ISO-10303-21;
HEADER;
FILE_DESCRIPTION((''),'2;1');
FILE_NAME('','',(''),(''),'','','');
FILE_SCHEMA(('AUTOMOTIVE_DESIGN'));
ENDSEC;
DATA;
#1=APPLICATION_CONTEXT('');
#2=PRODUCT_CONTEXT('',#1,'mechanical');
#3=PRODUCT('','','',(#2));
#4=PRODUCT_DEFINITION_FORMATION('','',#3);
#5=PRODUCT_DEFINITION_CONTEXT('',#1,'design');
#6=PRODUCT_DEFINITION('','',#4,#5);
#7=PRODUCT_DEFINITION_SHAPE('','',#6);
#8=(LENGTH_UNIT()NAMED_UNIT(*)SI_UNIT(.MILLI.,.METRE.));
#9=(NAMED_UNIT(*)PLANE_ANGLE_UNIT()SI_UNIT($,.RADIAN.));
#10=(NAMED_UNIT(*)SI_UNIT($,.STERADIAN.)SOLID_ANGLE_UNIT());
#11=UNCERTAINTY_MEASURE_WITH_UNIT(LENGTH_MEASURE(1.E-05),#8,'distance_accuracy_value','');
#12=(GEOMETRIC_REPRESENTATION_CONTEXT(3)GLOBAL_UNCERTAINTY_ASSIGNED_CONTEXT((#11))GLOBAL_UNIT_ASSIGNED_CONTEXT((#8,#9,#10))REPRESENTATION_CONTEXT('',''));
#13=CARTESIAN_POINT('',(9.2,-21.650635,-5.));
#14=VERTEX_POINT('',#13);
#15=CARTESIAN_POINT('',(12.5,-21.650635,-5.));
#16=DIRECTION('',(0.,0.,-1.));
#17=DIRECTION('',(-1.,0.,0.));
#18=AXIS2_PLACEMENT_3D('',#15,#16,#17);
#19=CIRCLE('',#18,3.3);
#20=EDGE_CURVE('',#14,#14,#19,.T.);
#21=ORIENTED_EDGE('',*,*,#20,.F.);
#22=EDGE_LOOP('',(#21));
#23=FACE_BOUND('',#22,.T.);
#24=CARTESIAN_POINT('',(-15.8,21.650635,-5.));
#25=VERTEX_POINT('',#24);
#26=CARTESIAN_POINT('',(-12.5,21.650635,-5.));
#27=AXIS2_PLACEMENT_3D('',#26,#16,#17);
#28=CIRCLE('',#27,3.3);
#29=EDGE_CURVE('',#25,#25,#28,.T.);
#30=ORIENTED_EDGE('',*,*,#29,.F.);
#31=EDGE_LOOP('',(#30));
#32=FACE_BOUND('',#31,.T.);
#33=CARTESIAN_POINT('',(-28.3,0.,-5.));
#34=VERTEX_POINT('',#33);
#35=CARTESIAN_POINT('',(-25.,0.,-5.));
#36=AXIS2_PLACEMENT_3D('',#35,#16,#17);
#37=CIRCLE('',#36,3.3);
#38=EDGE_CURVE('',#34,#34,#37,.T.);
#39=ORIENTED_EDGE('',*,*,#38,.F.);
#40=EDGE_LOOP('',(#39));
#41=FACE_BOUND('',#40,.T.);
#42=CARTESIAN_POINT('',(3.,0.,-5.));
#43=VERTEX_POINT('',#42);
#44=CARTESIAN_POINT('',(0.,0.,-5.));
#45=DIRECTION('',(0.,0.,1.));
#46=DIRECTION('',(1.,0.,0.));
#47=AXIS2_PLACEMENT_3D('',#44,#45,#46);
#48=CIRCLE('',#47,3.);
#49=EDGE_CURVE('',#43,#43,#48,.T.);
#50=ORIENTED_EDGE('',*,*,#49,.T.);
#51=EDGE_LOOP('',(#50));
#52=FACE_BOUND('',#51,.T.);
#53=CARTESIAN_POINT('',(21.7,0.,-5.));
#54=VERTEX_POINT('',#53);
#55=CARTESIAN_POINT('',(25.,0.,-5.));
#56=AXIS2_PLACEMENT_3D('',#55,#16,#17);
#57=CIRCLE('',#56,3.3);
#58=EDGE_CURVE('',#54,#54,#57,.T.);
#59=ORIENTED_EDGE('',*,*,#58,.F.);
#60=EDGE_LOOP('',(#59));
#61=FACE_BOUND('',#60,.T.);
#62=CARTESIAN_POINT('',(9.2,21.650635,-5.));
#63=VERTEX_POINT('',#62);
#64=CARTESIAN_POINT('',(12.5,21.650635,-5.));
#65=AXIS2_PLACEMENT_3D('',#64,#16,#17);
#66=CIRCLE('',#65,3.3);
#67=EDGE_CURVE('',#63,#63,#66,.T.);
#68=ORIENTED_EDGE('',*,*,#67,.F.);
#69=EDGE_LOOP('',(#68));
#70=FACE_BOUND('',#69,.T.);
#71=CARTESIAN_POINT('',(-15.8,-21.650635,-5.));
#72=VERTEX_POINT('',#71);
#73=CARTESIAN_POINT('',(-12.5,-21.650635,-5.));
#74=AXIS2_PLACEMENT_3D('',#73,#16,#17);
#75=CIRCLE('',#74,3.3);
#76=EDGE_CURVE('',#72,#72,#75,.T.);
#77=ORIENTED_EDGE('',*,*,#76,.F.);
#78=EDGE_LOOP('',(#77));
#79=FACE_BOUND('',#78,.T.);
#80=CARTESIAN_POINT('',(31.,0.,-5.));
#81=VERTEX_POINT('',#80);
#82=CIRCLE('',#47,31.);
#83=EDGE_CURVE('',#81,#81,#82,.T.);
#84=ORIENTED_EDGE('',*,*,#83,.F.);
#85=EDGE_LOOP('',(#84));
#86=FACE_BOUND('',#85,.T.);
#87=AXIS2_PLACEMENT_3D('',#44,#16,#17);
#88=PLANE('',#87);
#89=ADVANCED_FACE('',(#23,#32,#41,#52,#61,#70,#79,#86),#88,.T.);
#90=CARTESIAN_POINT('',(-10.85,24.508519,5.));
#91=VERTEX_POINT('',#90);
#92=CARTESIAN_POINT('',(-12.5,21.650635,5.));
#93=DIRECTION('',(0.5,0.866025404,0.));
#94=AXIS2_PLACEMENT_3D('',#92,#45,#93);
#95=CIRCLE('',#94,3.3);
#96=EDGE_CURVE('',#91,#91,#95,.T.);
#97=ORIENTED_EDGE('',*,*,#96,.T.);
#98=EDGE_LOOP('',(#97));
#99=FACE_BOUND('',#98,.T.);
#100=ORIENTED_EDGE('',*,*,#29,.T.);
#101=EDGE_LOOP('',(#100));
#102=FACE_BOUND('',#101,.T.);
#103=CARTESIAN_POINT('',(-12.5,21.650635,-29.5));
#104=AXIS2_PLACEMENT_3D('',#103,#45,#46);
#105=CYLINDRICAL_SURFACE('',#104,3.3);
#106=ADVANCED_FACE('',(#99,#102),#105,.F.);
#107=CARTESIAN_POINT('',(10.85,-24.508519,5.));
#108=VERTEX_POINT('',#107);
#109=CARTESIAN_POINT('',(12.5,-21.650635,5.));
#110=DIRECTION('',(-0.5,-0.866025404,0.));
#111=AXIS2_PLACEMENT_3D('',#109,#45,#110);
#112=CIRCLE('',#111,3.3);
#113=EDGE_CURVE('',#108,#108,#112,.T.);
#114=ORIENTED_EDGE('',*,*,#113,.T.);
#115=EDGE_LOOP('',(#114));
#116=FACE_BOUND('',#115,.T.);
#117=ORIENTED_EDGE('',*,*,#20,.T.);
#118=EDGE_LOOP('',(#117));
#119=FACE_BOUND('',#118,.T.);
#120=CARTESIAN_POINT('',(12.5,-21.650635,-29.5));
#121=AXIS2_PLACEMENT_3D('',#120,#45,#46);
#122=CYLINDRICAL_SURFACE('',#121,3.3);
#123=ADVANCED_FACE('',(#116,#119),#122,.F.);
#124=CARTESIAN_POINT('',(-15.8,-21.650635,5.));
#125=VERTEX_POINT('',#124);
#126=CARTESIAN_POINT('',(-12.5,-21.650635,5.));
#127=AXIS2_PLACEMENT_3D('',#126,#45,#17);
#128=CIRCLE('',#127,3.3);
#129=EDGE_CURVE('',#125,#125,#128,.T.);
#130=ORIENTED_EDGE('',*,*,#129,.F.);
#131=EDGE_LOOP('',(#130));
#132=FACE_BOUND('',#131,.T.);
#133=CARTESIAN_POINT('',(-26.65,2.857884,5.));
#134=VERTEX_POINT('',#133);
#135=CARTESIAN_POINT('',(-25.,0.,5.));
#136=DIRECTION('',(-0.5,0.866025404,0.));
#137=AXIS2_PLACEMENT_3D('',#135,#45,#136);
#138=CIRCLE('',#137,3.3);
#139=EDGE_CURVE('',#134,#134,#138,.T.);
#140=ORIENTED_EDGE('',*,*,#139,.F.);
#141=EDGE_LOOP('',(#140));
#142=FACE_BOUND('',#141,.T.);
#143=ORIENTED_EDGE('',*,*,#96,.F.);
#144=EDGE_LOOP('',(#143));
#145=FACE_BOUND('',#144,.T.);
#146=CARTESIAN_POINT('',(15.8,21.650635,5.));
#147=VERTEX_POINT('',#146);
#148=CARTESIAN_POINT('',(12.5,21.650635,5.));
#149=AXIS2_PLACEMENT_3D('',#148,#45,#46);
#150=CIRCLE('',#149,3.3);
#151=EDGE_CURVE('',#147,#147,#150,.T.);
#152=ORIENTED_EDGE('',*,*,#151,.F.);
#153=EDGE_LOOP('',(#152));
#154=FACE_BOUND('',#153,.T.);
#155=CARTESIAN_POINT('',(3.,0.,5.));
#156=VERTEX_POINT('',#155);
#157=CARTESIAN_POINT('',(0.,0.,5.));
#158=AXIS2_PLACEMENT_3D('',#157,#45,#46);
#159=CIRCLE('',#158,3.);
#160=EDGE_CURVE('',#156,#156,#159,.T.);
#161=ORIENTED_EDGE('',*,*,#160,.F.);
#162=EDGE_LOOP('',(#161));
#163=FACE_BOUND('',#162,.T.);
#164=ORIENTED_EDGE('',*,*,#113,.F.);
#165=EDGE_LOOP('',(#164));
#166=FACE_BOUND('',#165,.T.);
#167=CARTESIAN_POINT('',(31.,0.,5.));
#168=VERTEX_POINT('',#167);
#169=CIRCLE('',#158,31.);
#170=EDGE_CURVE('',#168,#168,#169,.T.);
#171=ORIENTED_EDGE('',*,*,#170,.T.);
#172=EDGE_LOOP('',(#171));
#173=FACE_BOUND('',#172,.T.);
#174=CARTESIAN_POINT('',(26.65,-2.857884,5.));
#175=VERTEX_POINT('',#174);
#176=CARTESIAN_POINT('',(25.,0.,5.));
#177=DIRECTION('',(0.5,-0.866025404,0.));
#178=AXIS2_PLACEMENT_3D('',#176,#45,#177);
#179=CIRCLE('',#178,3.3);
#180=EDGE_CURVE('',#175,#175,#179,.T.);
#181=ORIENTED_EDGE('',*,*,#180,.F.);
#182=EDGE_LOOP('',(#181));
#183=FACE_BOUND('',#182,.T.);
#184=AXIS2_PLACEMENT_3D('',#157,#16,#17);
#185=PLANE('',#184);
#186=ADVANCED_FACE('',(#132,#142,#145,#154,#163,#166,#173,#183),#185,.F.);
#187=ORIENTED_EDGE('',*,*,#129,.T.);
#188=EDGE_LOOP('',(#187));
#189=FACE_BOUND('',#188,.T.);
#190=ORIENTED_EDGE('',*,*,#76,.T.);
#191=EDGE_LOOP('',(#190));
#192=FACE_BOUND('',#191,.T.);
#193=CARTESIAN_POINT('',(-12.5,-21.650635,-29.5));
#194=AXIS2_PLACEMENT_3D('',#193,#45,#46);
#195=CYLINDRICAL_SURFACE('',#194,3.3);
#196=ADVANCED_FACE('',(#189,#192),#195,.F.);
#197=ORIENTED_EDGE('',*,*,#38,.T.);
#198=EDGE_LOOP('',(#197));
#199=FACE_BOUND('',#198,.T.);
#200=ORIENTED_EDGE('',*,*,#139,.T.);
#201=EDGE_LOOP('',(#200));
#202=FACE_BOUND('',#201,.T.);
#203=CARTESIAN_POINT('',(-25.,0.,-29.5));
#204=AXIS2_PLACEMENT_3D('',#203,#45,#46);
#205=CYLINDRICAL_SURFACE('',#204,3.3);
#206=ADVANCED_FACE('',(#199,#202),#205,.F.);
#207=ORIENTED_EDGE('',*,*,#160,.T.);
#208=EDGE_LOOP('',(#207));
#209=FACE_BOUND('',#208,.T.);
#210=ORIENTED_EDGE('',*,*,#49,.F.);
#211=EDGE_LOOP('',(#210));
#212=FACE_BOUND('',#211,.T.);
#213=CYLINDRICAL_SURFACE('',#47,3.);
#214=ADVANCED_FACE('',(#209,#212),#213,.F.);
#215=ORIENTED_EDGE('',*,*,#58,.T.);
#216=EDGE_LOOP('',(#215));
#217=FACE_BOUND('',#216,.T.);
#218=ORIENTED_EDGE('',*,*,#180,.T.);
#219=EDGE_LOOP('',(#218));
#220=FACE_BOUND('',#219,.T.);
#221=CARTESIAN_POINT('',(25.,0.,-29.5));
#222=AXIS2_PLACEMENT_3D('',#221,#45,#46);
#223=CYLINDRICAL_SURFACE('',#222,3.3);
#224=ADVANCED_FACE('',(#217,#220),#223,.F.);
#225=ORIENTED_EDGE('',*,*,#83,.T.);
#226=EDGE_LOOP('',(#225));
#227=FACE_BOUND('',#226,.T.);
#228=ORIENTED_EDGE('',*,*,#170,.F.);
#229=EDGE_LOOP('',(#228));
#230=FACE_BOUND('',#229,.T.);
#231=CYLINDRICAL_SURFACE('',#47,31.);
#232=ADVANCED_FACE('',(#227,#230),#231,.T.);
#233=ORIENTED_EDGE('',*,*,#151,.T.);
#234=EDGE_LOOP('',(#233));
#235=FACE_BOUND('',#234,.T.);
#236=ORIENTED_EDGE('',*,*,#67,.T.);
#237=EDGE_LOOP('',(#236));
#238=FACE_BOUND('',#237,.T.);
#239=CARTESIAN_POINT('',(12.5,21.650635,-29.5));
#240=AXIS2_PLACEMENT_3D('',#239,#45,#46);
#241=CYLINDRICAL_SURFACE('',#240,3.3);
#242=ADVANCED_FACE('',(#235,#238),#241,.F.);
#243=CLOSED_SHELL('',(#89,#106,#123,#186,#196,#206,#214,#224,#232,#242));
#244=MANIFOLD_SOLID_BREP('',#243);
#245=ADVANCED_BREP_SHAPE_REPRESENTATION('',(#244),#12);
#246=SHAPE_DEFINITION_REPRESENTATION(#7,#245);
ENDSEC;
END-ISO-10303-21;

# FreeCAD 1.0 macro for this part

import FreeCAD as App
import Part
import Sketcher


def add_polygon(sketch, points):
    """Adds a closed chain of lines whose ends are joined by coincident constraints."""
    first, n = sketch.GeometryCount, len(points)
    for a, b in zip(points, points[1:] + points[:1]):
        sketch.addGeometry(Part.LineSegment(App.Vector(*a, 0), App.Vector(*b, 0)), False)
    for i in range(n):
        sketch.addConstraint(Sketcher.Constraint("Coincident", first + i, 2, first + (i + 1) % n, 1))

doc = App.newDocument("Part")
body = doc.addObject("PartDesign::Body", "Body")

# Sketch on XY plane
sketch1 = body.newObject("Sketcher::SketchObject", "Sketch")
sketch1.AttachmentSupport = (doc.getObject("XY_Plane"), [""])
sketch1.MapMode = "FlatFace"
add_polygon(sketch1, [(-40, 59), (-40, -59), (40, -59), (40, 59)])  # lines 0-3
sketch1.addConstraint([
    Sketcher.Constraint("Vertical", 0),
    Sketcher.Constraint("Horizontal", 1),
    Sketcher.Constraint("Vertical", 2),
    Sketcher.Constraint("Horizontal", 3),
    Sketcher.Constraint("Symmetric", 0, 2, 2, 2, -1, 1),
    Sketcher.Constraint("DistanceX", 1, 1, 1, 2, 80.0),
    Sketcher.Constraint("DistanceY", 0, 2, 0, 1, 117.2),
])
pad1 = body.newObject("PartDesign::Pad", "Pad")
pad1.Profile = sketch1
pad1.Length = 10
pad1.Midplane = True

# Sketch on XY plane
sketch2 = body.newObject("Sketcher::SketchObject", "Sketch001")
sketch2.AttachmentSupport = (doc.getObject("XY_Plane"), [""])
sketch2.MapMode = "FlatFace"
sketch2.AttachmentOffset = App.Placement(App.Vector(0, 0, 5), App.Rotation())
sketch2.addGeometry(Part.Circle(App.Vector(0, 0, 0), App.Vector(0, 0, 1), 3), False)
sketch2.addConstraint([
    Sketcher.Constraint("Coincident", 0, 3, -1, 1),
    Sketcher.Constraint("Diameter", 0, 6.0),
])
pocket1 = body.newObject("PartDesign::Pocket", "Pocket")
pocket1.Profile = sketch2
pocket1.Type = "ThroughAll"

# Sketch on XY plane
sketch3 = body.newObject("Sketcher::SketchObject", "Sketch002")
sketch3.AttachmentSupport = (doc.getObject("XY_Plane"), [""])
sketch3.MapMode = "FlatFace"
sketch3.AttachmentOffset = App.Placement(App.Vector(0, 0, 5), App.Rotation())
sketch3.addGeometry(Part.Circle(App.Vector(12.5, 21.7, 0), App.Vector(0, 0, 1), 3.3), False)
sketch3.addConstraint([
    Sketcher.Constraint("Diameter", 0, 6.6),
    Sketcher.Constraint("DistanceX", -1, 1, 0, 3, 12.5),
    Sketcher.Constraint("DistanceY", -1, 1, 0, 3, 21.650635),
])
pocket2 = body.newObject("PartDesign::Pocket", "Pocket001")
pocket2.Profile = sketch3
pocket2.Length = 34.5
doc.recompute()

polarpattern = body.newObject("PartDesign::PolarPattern", "PolarPattern")
polarpattern.Originals = [pocket2]
polarpattern.Axis = (doc.getObject("Z_Axis"), [""])
polarpattern.Angle = 360
polarpattern.Occurrences = 6
body.Tip = polarpattern

# Sketch on XY plane
sketch4 = body.newObject("Sketcher::SketchObject", "Sketch003")
sketch4.AttachmentSupport = (doc.getObject("XY_Plane"), [""])
sketch4.MapMode = "FlatFace"
sketch4.AttachmentOffset = App.Placement(App.Vector(0, 0, 5), App.Rotation())
add_polygon(sketch4, [(-40, -41), (-40, -59), (40, -59), (40, -41)])  # lines 0-3
sketch4.addConstraint([
    Sketcher.Constraint("Vertical", 0),
    Sketcher.Constraint("Horizontal", 1),
    Sketcher.Constraint("Vertical", 2),
    Sketcher.Constraint("Horizontal", 3),
    Sketcher.Constraint("DistanceX", 1, 1, 1, 2, 80.0),
    Sketcher.Constraint("DistanceY", 0, 2, 0, 1, 17.2),
    Sketcher.Constraint("DistanceX", 0, 2, -1, 1, 40.0),
    Sketcher.Constraint("DistanceY", 0, 2, -1, 1, 58.6),
])
pocket3 = body.newObject("PartDesign::Pocket", "Pocket002")
pocket3.Profile = sketch4
pocket3.Type = "ThroughAll"

# Sketch on XY plane
sketch5 = body.newObject("Sketcher::SketchObject", "Sketch004")
sketch5.AttachmentSupport = (doc.getObject("XY_Plane"), [""])
sketch5.MapMode = "FlatFace"
sketch5.AttachmentOffset = App.Placement(App.Vector(0, 0, 5), App.Rotation())
add_polygon(sketch5, [(-40, 59), (-40, -41), (40, -41), (40, 59)])  # lines 0-3
sketch5.addGeometry(Part.Circle(App.Vector(0, 0, 0), App.Vector(0, 0, 1), 31), False)  # 4
sketch5.addConstraint([
    Sketcher.Constraint("Vertical", 0),
    Sketcher.Constraint("Horizontal", 1),
    Sketcher.Constraint("Vertical", 2),
    Sketcher.Constraint("Horizontal", 3),
    Sketcher.Constraint("Coincident", 4, 3, -1, 1),
    Sketcher.Constraint("Diameter", 4, 62.0),
    Sketcher.Constraint("DistanceX", 1, 1, 1, 2, 80.0),
    Sketcher.Constraint("DistanceY", 0, 2, 0, 1, 100.0),
    Sketcher.Constraint("DistanceX", 0, 2, -1, 1, 40.0),
    Sketcher.Constraint("DistanceY", 0, 2, -1, 1, 41.4),
])
pocket4 = body.newObject("PartDesign::Pocket", "Pocket003")
pocket4.Profile = sketch5
pocket4.Type = "ThroughAll"

doc.recompute()
